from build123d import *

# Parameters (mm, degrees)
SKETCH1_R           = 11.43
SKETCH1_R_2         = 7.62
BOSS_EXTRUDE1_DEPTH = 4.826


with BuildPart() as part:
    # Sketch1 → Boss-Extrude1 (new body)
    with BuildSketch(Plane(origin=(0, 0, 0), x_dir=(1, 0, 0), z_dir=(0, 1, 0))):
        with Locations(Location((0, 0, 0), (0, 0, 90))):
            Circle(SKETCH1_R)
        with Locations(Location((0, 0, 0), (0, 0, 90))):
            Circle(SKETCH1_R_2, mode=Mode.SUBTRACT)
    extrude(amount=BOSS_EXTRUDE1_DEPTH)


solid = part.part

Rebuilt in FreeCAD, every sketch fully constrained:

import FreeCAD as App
import Part
import Sketcher
from FreeCAD import Vector
Q = App.Units.Quantity

doc = App.newDocument("Part")
body = doc.addObject("PartDesign::Body", "Body")

sketch1 = doc.addObject("Sketcher::SketchObject", "Sketch")
body.addObject(sketch1)
sketch1.AttachmentSupport = (doc.XZ_Plane, [""])
sketch1.MapMode = "FlatFace"
sketch1.addGeometry(Part.Circle(Vector(0, 0, 0), Vector(0, 0, 1), 11), False)
sketch1.addGeometry(Part.Circle(Vector(0, 0, 0), Vector(0, 0, 1), 8), False)
sketch1.addConstraint(Sketcher.Constraint("Coincident", 0, 3, -1, 1))
sketch1.addConstraint(Sketcher.Constraint("Coincident", 1, 3, -1, 1))
sketch1.addConstraint(Sketcher.Constraint("Diameter", 0, Q("0.9 in")))
sketch1.addConstraint(Sketcher.Constraint("Diameter", 1, Q("0.6 in")))
pad1 = doc.addObject("PartDesign::Pad", "Pad")
body.addObject(pad1)
pad1.Profile = sketch1
pad1.Length = Q("0.19 in")
pad1.Reversed = True

doc.recompute()
